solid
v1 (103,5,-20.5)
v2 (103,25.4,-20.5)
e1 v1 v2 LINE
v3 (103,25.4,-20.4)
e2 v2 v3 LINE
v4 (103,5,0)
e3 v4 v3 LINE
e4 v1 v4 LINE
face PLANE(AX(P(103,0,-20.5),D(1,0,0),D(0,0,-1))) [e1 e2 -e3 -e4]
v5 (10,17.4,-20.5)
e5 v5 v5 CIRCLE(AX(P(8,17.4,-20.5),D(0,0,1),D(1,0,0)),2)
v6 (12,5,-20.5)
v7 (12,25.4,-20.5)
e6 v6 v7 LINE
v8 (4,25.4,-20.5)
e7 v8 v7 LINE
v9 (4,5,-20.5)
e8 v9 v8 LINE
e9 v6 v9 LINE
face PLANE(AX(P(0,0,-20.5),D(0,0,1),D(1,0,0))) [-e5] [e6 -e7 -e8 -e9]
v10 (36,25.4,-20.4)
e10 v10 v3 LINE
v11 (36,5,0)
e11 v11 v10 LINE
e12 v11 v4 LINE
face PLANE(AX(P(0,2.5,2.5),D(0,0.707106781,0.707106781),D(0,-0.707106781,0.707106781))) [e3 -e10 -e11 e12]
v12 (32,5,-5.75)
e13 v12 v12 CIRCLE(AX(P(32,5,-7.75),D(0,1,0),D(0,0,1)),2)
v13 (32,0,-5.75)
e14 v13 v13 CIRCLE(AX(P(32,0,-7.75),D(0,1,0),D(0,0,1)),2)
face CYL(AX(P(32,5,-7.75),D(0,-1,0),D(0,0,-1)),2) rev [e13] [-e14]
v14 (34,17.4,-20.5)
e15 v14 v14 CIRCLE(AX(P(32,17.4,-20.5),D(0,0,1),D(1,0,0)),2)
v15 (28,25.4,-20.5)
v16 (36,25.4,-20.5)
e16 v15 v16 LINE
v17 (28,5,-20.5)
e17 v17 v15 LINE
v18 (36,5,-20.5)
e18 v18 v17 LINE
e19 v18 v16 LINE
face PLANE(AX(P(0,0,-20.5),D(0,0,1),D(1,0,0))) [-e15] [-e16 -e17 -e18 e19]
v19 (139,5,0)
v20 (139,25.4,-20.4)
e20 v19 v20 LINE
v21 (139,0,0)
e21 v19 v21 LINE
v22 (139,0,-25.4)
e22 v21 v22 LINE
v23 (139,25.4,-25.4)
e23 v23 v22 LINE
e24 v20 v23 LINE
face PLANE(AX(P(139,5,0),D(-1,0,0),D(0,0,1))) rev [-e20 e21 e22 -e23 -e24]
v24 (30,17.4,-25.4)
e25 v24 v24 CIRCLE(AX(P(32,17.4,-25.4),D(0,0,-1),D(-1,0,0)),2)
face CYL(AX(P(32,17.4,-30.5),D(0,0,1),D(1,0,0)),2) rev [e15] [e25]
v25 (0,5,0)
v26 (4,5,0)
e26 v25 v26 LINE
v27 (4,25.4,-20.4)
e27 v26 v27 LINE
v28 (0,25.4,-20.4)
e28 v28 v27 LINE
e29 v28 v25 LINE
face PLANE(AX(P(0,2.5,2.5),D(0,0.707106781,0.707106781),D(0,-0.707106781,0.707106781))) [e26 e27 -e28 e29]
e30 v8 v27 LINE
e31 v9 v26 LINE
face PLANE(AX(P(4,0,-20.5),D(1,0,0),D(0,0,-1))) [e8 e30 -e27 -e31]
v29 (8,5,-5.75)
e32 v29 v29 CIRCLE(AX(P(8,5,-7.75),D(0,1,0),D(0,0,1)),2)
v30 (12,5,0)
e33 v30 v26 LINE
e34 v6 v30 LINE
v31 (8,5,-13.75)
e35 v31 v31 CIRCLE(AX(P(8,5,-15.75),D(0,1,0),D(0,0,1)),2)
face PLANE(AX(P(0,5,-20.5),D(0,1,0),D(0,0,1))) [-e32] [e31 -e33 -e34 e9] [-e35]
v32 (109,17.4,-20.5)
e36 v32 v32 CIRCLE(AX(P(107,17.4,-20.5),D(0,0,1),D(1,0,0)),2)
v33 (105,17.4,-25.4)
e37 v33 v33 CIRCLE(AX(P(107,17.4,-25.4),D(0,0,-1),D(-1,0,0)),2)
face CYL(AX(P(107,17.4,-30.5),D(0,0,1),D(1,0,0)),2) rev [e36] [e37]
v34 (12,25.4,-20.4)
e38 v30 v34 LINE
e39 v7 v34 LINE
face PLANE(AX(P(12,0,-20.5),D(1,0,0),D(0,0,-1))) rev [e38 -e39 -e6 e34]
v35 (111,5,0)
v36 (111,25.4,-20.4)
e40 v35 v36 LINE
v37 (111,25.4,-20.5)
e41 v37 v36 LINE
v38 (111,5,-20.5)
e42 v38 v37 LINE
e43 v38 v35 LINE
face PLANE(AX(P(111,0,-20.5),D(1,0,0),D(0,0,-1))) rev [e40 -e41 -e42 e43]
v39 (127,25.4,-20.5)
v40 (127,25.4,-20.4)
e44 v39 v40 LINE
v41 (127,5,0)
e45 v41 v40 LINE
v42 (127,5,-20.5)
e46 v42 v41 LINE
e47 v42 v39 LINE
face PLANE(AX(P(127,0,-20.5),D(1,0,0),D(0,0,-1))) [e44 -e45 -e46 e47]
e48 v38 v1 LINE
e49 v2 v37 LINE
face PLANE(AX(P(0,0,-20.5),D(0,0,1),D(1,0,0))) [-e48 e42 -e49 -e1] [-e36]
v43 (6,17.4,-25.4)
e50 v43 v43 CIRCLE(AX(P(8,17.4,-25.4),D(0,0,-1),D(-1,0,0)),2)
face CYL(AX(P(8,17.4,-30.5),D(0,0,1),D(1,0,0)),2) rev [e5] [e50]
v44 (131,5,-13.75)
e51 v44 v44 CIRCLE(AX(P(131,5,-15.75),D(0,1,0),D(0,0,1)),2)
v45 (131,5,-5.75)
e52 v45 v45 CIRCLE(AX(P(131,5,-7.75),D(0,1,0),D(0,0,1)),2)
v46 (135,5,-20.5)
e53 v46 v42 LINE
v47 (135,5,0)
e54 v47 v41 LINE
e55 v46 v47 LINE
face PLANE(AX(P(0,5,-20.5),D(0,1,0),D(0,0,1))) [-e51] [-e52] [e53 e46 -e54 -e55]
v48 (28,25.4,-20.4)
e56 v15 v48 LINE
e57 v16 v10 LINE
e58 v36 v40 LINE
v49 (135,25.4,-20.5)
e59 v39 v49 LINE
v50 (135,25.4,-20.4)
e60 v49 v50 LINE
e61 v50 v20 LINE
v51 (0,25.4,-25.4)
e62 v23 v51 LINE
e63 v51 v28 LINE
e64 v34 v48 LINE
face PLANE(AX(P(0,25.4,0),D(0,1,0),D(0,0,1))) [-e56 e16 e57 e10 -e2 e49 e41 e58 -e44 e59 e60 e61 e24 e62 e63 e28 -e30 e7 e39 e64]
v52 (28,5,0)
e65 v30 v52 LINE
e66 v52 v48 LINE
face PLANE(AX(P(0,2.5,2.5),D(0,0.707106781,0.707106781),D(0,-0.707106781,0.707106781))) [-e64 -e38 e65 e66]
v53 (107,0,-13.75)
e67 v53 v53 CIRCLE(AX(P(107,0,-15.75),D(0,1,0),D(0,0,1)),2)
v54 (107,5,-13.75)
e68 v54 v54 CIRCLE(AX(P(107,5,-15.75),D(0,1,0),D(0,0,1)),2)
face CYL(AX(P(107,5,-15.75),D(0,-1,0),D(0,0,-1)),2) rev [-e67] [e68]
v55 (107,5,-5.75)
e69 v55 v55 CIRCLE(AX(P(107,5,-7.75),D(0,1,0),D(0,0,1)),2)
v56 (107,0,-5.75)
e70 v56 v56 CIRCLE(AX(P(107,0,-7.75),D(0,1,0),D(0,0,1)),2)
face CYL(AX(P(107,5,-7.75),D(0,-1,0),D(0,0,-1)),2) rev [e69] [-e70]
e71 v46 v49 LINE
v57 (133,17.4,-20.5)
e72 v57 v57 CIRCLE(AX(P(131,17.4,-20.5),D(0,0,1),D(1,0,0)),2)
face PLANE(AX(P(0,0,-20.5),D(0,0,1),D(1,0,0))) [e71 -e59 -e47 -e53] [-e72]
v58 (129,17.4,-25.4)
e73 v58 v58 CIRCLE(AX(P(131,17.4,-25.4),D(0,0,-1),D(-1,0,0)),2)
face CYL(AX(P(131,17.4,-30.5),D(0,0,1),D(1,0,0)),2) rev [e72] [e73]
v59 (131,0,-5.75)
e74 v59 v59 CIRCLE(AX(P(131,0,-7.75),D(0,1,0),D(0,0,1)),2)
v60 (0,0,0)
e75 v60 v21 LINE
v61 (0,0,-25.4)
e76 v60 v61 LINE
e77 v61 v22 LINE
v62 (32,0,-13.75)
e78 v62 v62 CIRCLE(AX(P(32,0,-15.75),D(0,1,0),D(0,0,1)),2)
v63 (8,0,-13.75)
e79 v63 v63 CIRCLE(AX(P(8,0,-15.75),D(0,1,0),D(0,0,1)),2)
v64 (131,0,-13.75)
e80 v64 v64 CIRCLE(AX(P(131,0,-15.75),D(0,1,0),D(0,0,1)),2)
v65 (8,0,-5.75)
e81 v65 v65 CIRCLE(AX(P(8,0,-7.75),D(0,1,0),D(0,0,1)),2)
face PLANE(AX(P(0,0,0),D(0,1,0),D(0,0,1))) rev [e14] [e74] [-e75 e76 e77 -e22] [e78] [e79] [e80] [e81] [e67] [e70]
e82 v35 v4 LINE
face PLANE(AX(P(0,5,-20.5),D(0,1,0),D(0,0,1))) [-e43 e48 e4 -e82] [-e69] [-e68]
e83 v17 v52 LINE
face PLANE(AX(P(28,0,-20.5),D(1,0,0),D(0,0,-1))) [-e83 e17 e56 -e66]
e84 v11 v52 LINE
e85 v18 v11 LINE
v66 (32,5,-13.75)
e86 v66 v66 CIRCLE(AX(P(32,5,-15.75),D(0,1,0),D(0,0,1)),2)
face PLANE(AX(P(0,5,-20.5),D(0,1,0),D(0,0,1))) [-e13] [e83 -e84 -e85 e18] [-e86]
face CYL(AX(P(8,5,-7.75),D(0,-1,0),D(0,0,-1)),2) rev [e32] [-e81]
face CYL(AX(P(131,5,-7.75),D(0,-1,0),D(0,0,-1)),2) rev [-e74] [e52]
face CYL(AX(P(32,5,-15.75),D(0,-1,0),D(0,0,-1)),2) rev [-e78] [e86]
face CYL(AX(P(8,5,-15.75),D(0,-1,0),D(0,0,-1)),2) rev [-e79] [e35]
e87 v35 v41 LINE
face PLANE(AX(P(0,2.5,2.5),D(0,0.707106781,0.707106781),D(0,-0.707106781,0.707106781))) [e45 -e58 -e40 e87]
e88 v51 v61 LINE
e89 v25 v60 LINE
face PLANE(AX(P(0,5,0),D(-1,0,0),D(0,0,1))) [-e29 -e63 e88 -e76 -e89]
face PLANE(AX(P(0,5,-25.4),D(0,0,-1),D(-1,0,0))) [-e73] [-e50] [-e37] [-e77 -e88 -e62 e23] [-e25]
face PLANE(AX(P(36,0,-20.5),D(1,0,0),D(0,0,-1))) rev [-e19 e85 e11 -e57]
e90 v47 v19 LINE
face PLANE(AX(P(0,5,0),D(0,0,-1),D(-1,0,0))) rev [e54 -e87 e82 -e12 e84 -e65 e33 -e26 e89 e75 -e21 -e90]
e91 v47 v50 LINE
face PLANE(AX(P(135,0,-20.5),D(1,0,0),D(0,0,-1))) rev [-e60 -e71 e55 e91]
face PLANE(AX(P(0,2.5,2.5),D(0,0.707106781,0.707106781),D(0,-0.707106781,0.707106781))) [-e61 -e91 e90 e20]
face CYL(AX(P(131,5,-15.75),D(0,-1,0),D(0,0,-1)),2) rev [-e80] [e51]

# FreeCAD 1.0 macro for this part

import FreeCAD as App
import Part
import Sketcher

V = App.Vector
Q = App.Units.Quantity

doc = App.newDocument("Part")
body = doc.addObject("PartDesign::Body", "Body")

# Sketch on XZ plane
sketch1 = doc.addObject("Sketcher::SketchObject", "Sketch")
body.addObject(sketch1)
sketch1.AttachmentSupport = (doc.XZ_Plane, [""])
sketch1.MapMode = "FlatFace"
sketch1.addGeometry(Part.LineSegment(V(0, 0, 0), V(139, 0, 0)), False)
sketch1.addGeometry(Part.LineSegment(V(139, 0, 0), V(139, -25.4, 0)), False)
sketch1.addGeometry(Part.LineSegment(V(139, -25.4, 0), V(0, -25.4, 0)), False)
sketch1.addGeometry(Part.LineSegment(V(0, -25.4, 0), V(0, 0, 0)), False)
sketch1.addGeometry(Part.Circle(V(131, -15.8, 0), V(0, 0, 1), 2), False)
sketch1.addGeometry(Part.Circle(V(107, -15.8, 0), V(0, 0, 1), 2), False)
sketch1.addGeometry(Part.Circle(V(32, -15.8, 0), V(0, 0, 1), 2), False)
sketch1.addGeometry(Part.Circle(V(8, -15.8, 0), V(0, 0, 1), 2), False)
sketch1.addGeometry(Part.Circle(V(8, -7.8, 0), V(0, 0, 1), 2), False)
sketch1.addGeometry(Part.Circle(V(32, -7.8, 0), V(0, 0, 1), 2), False)
sketch1.addGeometry(Part.Circle(V(107, -7.8, 0), V(0, 0, 1), 2), False)
sketch1.addGeometry(Part.Circle(V(131, -7.8, 0), V(0, 0, 1), 2), False)
sketch1.addConstraint(Sketcher.Constraint("Coincident", 0, 2, 1, 1))
sketch1.addConstraint(Sketcher.Constraint("Coincident", 1, 2, 2, 1))
sketch1.addConstraint(Sketcher.Constraint("Coincident", 2, 2, 3, 1))
sketch1.addConstraint(Sketcher.Constraint("Coincident", 3, 2, 0, 1))
sketch1.addConstraint(Sketcher.Constraint("Horizontal", 0))
sketch1.addConstraint(Sketcher.Constraint("Vertical", 1))
sketch1.addConstraint(Sketcher.Constraint("Horizontal", 2))
sketch1.addConstraint(Sketcher.Constraint("Vertical", 3))
sketch1.addConstraint(Sketcher.Constraint("Coincident", 3, 2, -1, 1))
sketch1.addConstraint(Sketcher.Constraint("Equal", 4, 5))
sketch1.addConstraint(Sketcher.Constraint("Equal", 5, 6))
sketch1.addConstraint(Sketcher.Constraint("Equal", 6, 7))
sketch1.addConstraint(Sketcher.Constraint("Equal", 7, 8))
sketch1.addConstraint(Sketcher.Constraint("Equal", 8, 9))
sketch1.addConstraint(Sketcher.Constraint("Equal", 9, 10))
sketch1.addConstraint(Sketcher.Constraint("Equal", 10, 11))
sketch1.addConstraint(Sketcher.Constraint("Horizontal", 4, 3, 5, 3))
sketch1.addConstraint(Sketcher.Constraint("Horizontal", 5, 3, 6, 3))
sketch1.addConstraint(Sketcher.Constraint("Horizontal", 6, 3, 7, 3))
sketch1.addConstraint(Sketcher.Constraint("Horizontal", 8, 3, 9, 3))
sketch1.addConstraint(Sketcher.Constraint("Horizontal", 9, 3, 10, 3))
sketch1.addConstraint(Sketcher.Constraint("Horizontal", 10, 3, 11, 3))
sketch1.addConstraint(Sketcher.Constraint("Vertical", 7, 3, 8, 3))
sketch1.addConstraint(Sketcher.Constraint("Vertical", 6, 3, 9, 3))
sketch1.addConstraint(Sketcher.Constraint("Vertical", 5, 3, 10, 3))
sketch1.addConstraint(Sketcher.Constraint("Vertical", 4, 3, 11, 3))
sketch1.addConstraint(Sketcher.Constraint("Diameter", 4, 4.0))
sketch1.addConstraint(Sketcher.Constraint("DistanceX", 0, 1, 0, 2, 139.0))
sketch1.addConstraint(Sketcher.Constraint("DistanceY", 1, 2, 1, 1, 25.4))
sketch1.addConstraint(Sketcher.Constraint("DistanceX", -1, 1, 4, 3, 131.0))
sketch1.addConstraint(Sketcher.Constraint("DistanceX", -1, 1, 5, 3, 107.0))
sketch1.addConstraint(Sketcher.Constraint("DistanceX", -1, 1, 6, 3, 32.0))
sketch1.addConstraint(Sketcher.Constraint("DistanceX", -1, 1, 7, 3, 8.0))
sketch1.addConstraint(Sketcher.Constraint("DistanceY", 7, 3, 8, 3, 8.0))
sketch1.addConstraint(Sketcher.Constraint("DistanceY", 4, 3, -1, 1, 15.75))
pad1 = doc.addObject("PartDesign::Pad", "Pad")
body.addObject(pad1)
pad1.Profile = sketch1
pad1.Length = 5
pad1.Reversed = True

# Sketch on XZ plane
sketch2 = doc.addObject("Sketcher::SketchObject", "Sketch001")
body.addObject(sketch2)
sketch2.AttachmentSupport = (doc.XZ_Plane, [""])
sketch2.MapMode = "FlatFace"
sketch2.AttachmentOffset = App.Placement(V(0, 0, -5), App.Rotation())
sketch2.addGeometry(Part.LineSegment(V(0, -25, 0), V(0, -20, 0)), False)
sketch2.addGeometry(Part.LineSegment(V(0, -20, 0), V(139, -20, 0)), False)
sketch2.addGeometry(Part.LineSegment(V(139, -20, 0), V(139, -25, 0)), False)
sketch2.addGeometry(Part.LineSegment(V(139, -25, 0), V(0, -25, 0)), False)
sketch2.addConstraint(Sketcher.Constraint("Coincident", 0, 2, 1, 1))
sketch2.addConstraint(Sketcher.Constraint("Coincident", 1, 2, 2, 1))
sketch2.addConstraint(Sketcher.Constraint("Coincident", 2, 2, 3, 1))
sketch2.addConstraint(Sketcher.Constraint("Coincident", 3, 2, 0, 1))
sketch2.addConstraint(Sketcher.Constraint("Vertical", 0))
sketch2.addConstraint(Sketcher.Constraint("Horizontal", 1))
sketch2.addConstraint(Sketcher.Constraint("Vertical", 2))
sketch2.addConstraint(Sketcher.Constraint("Horizontal", 3))
sketch2.addConstraint(Sketcher.Constraint("PointOnObject", 0, 2, -2))
sketch2.addConstraint(Sketcher.Constraint("DistanceX", 1, 1, 1, 2, 139.0))
sketch2.addConstraint(Sketcher.Constraint("DistanceY", 0, 1, 0, 2, 5.0))
sketch2.addConstraint(Sketcher.Constraint("DistanceY", 0, 2, -1, 1, 20.4))
pad2 = doc.addObject("PartDesign::Pad", "Pad001")
body.addObject(pad2)
pad2.Profile = sketch2
pad2.Length = 20.4
pad2.Reversed = True

# Sketch on XZ plane
sketch3 = doc.addObject("Sketcher::SketchObject", "Sketch002")
body.addObject(sketch3)
sketch3.AttachmentSupport = (doc.XZ_Plane, [""])
sketch3.MapMode = "FlatFace"
sketch3.AttachmentOffset = App.Placement(V(0, 0, -5), App.Rotation())
sketch3.addGeometry(Part.LineSegment(V(0, -20, 0), V(0, 0, 0)), False)
sketch3.addGeometry(Part.LineSegment(V(0, 0, 0), V(139, 0, 0)), False)
sketch3.addGeometry(Part.LineSegment(V(139, 0, 0), V(139, -20, 0)), False)
sketch3.addGeometry(Part.LineSegment(V(139, -20, 0), V(0, -20, 0)), False)
sketch3.addConstraint(Sketcher.Constraint("Coincident", 0, 2, 1, 1))
sketch3.addConstraint(Sketcher.Constraint("Coincident", 1, 2, 2, 1))
sketch3.addConstraint(Sketcher.Constraint("Coincident", 2, 2, 3, 1))
sketch3.addConstraint(Sketcher.Constraint("Coincident", 3, 2, 0, 1))
sketch3.addConstraint(Sketcher.Constraint("Vertical", 0))
sketch3.addConstraint(Sketcher.Constraint("Horizontal", 1))
sketch3.addConstraint(Sketcher.Constraint("Vertical", 2))
sketch3.addConstraint(Sketcher.Constraint("Horizontal", 3))
sketch3.addConstraint(Sketcher.Constraint("Coincident", 0, 2, -1, 1))
sketch3.addConstraint(Sketcher.Constraint("DistanceX", 1, 1, 1, 2, 139.0))
sketch3.addConstraint(Sketcher.Constraint("DistanceY", 0, 1, 0, 2, 20.4))
pad3 = doc.addObject("PartDesign::Pad", "Pad002")
body.addObject(pad3)
pad3.Profile = sketch3
pad3.Length = 20.5
pad3.Reversed = True

# Sketch on YZ plane
sketch4 = doc.addObject("Sketcher::SketchObject", "Sketch003")
body.addObject(sketch4)
sketch4.AttachmentSupport = (doc.YZ_Plane, [""])
sketch4.MapMode = "FlatFace"
sketch4.AttachmentOffset = App.Placement(V(0, 0, 139), App.Rotation())
sketch4.addGeometry(Part.LineSegment(V(5, 0, 0), V(25.4, -20.4, 0)), False)
sketch4.addGeometry(Part.LineSegment(V(25.4, -20.4, 0), V(25.5, -20.4, 0)), False)
sketch4.addGeometry(Part.LineSegment(V(25.5, -20.4, 0), V(25.5, 0, 0)), False)
sketch4.addGeometry(Part.LineSegment(V(25.5, 0, 0), V(5, 0, 0)), False)
sketch4.addConstraint(Sketcher.Constraint("Coincident", 0, 2, 1, 1))
sketch4.addConstraint(Sketcher.Constraint("Coincident", 1, 2, 2, 1))
sketch4.addConstraint(Sketcher.Constraint("Coincident", 2, 2, 3, 1))
sketch4.addConstraint(Sketcher.Constraint("Coincident", 3, 2, 0, 1))
sketch4.addConstraint(Sketcher.Constraint("Horizontal", 1))
sketch4.addConstraint(Sketcher.Constraint("Vertical", 2))
sketch4.addConstraint(Sketcher.Constraint("Horizontal", 3))
sketch4.addConstraint(Sketcher.Constraint("PointOnObject", 2, 2, -1))
sketch4.addConstraint(Sketcher.Constraint("Angle", 0, Q("-45 deg")))
sketch4.addConstraint(Sketcher.Constraint("DistanceX", 1, 1, 1, 2, 0.1))
sketch4.addConstraint(Sketcher.Constraint("DistanceX", 3, 2, 3, 1, 20.5))
sketch4.addConstraint(Sketcher.Constraint("DistanceX", -1, 1, 3, 2, 5.0))
pocket1 = doc.addObject("PartDesign::Pocket", "Pocket")
body.addObject(pocket1)
pocket1.Profile = sketch4
pocket1.Type = "ThroughAll"
pocket1.Midplane = True

# Sketch on XY plane
sketch5 = doc.addObject("Sketcher::SketchObject", "Sketch004")
body.addObject(sketch5)
sketch5.AttachmentSupport = (doc.XY_Plane, [""])
sketch5.MapMode = "FlatFace"
sketch5.addGeometry(Part.LineSegment(V(4, 25, 0), V(4, 5, 0)), False)
sketch5.addGeometry(Part.LineSegment(V(4, 5, 0), V(12, 5, 0)), False)
sketch5.addGeometry(Part.LineSegment(V(12, 5, 0), V(12, 25, 0)), False)
sketch5.addGeometry(Part.LineSegment(V(12, 25, 0), V(4, 25, 0)), False)
sketch5.addGeometry(Part.LineSegment(V(28, 25, 0), V(28, 5, 0)), False)
sketch5.addGeometry(Part.LineSegment(V(28, 5, 0), V(36, 5, 0)), False)
sketch5.addGeometry(Part.LineSegment(V(36, 5, 0), V(36, 25, 0)), False)
sketch5.addGeometry(Part.LineSegment(V(36, 25, 0), V(28, 25, 0)), False)
sketch5.addGeometry(Part.LineSegment(V(103, 25, 0), V(103, 5, 0)), False)
sketch5.addGeometry(Part.LineSegment(V(103, 5, 0), V(111, 5, 0)), False)
sketch5.addGeometry(Part.LineSegment(V(111, 5, 0), V(111, 25, 0)), False)
sketch5.addGeometry(Part.LineSegment(V(111, 25, 0), V(103, 25, 0)), False)
sketch5.addGeometry(Part.LineSegment(V(127, 25, 0), V(127, 5, 0)), False)
sketch5.addGeometry(Part.LineSegment(V(127, 5, 0), V(135, 5, 0)), False)
sketch5.addGeometry(Part.LineSegment(V(135, 5, 0), V(135, 25, 0)), False)
sketch5.addGeometry(Part.LineSegment(V(135, 25, 0), V(127, 25, 0)), False)
sketch5.addConstraint(Sketcher.Constraint("Coincident", 0, 2, 1, 1))
sketch5.addConstraint(Sketcher.Constraint("Coincident", 1, 2, 2, 1))
sketch5.addConstraint(Sketcher.Constraint("Coincident", 2, 2, 3, 1))
sketch5.addConstraint(Sketcher.Constraint("Coincident", 3, 2, 0, 1))
sketch5.addConstraint(Sketcher.Constraint("Coincident", 4, 2, 5, 1))
sketch5.addConstraint(Sketcher.Constraint("Coincident", 5, 2, 6, 1))
sketch5.addConstraint(Sketcher.Constraint("Coincident", 6, 2, 7, 1))
sketch5.addConstraint(Sketcher.Constraint("Coincident", 7, 2, 4, 1))
sketch5.addConstraint(Sketcher.Constraint("Coincident", 8, 2, 9, 1))
sketch5.addConstraint(Sketcher.Constraint("Coincident", 9, 2, 10, 1))
sketch5.addConstraint(Sketcher.Constraint("Coincident", 10, 2, 11, 1))
sketch5.addConstraint(Sketcher.Constraint("Coincident", 11, 2, 8, 1))
sketch5.addConstraint(Sketcher.Constraint("Coincident", 12, 2, 13, 1))
sketch5.addConstraint(Sketcher.Constraint("Coincident", 13, 2, 14, 1))
sketch5.addConstraint(Sketcher.Constraint("Coincident", 14, 2, 15, 1))
sketch5.addConstraint(Sketcher.Constraint("Coincident", 15, 2, 12, 1))
sketch5.addConstraint(Sketcher.Constraint("Vertical", 0))
sketch5.addConstraint(Sketcher.Constraint("Horizontal", 1))
sketch5.addConstraint(Sketcher.Constraint("Vertical", 2))
sketch5.addConstraint(Sketcher.Constraint("Horizontal", 3))
sketch5.addConstraint(Sketcher.Constraint("Vertical", 4))
sketch5.addConstraint(Sketcher.Constraint("Horizontal", 5))
sketch5.addConstraint(Sketcher.Constraint("Vertical", 6))
sketch5.addConstraint(Sketcher.Constraint("Horizontal", 7))
sketch5.addConstraint(Sketcher.Constraint("Vertical", 8))
sketch5.addConstraint(Sketcher.Constraint("Horizontal", 9))
sketch5.addConstraint(Sketcher.Constraint("Vertical", 10))
sketch5.addConstraint(Sketcher.Constraint("Horizontal", 11))
sketch5.addConstraint(Sketcher.Constraint("Vertical", 12))
sketch5.addConstraint(Sketcher.Constraint("Horizontal", 13))
sketch5.addConstraint(Sketcher.Constraint("Vertical", 14))
sketch5.addConstraint(Sketcher.Constraint("Horizontal", 15))
sketch5.addConstraint(Sketcher.Constraint("Horizontal", 1, 2, 4, 2))
sketch5.addConstraint(Sketcher.Constraint("Horizontal", 3, 2, 6, 2))
sketch5.addConstraint(Sketcher.Constraint("Horizontal", 5, 2, 8, 2))
sketch5.addConstraint(Sketcher.Constraint("Horizontal", 7, 2, 10, 2))
sketch5.addConstraint(Sketcher.Constraint("Horizontal", 9, 2, 12, 2))
sketch5.addConstraint(Sketcher.Constraint("Horizontal", 11, 2, 14, 2))
sketch5.addConstraint(Sketcher.Constraint("Equal", 3, 5))
sketch5.addConstraint(Sketcher.Constraint("Equal", 7, 9))
sketch5.addConstraint(Sketcher.Constraint("Equal", 11, 13))
sketch5.addConstraint(Sketcher.Constraint("DistanceX", 1, 1, 1, 2, 8.0))
sketch5.addConstraint(Sketcher.Constraint("DistanceY", 0, 2, 0, 1, 20.4))
sketch5.addConstraint(Sketcher.Constraint("DistanceX", -1, 1, 0, 2, 4.0))
sketch5.addConstraint(Sketcher.Constraint("DistanceY", -1, 1, 0, 2, 5.0))
sketch5.addConstraint(Sketcher.Constraint("DistanceX", -1, 1, 4, 2, 28.0))
sketch5.addConstraint(Sketcher.Constraint("DistanceX", -1, 1, 8, 2, 103.0))
sketch5.addConstraint(Sketcher.Constraint("DistanceX", -1, 1, 12, 2, 127.0))
pocket2 = doc.addObject("PartDesign::Pocket", "Pocket001")
body.addObject(pocket2)
pocket2.Profile = sketch5
pocket2.Length = 20.5

# Sketch on XY plane
sketch6 = doc.addObject("Sketcher::SketchObject", "Sketch005")
body.addObject(sketch6)
sketch6.AttachmentSupport = (doc.XY_Plane, [""])
sketch6.MapMode = "FlatFace"
sketch6.AttachmentOffset = App.Placement(V(0, 0, -20.5), App.Rotation())
sketch6.addGeometry(Part.Circle(V(8, 17.4, 0), V(0, 0, 1), 2), False)
sketch6.addGeometry(Part.Circle(V(32, 17.4, 0), V(0, 0, 1), 2), False)
sketch6.addGeometry(Part.Circle(V(107, 17.4, 0), V(0, 0, 1), 2), False)
sketch6.addGeometry(Part.Circle(V(131, 17.4, 0), V(0, 0, 1), 2), False)
sketch6.addConstraint(Sketcher.Constraint("Equal", 0, 1))
sketch6.addConstraint(Sketcher.Constraint("Equal", 1, 2))
sketch6.addConstraint(Sketcher.Constraint("Equal", 2, 3))
sketch6.addConstraint(Sketcher.Constraint("Horizontal", 0, 3, 1, 3))
sketch6.addConstraint(Sketcher.Constraint("Horizontal", 1, 3, 2, 3))
sketch6.addConstraint(Sketcher.Constraint("Horizontal", 2, 3, 3, 3))
sketch6.addConstraint(Sketcher.Constraint("Diameter", 0, 4.0))
sketch6.addConstraint(Sketcher.Constraint("DistanceX", -1, 1, 0, 3, 8.0))
sketch6.addConstraint(Sketcher.Constraint("DistanceX", -1, 1, 1, 3, 32.0))
sketch6.addConstraint(Sketcher.Constraint("DistanceX", -1, 1, 2, 3, 107.0))
sketch6.addConstraint(Sketcher.Constraint("DistanceX", -1, 1, 3, 3, 131.0))
sketch6.addConstraint(Sketcher.Constraint("DistanceY", -1, 1, 0, 3, 17.4))
pocket3 = doc.addObject("PartDesign::Pocket", "Pocket002")
body.addObject(pocket3)
pocket3.Profile = sketch6
pocket3.Length = 10

doc.recompute()
